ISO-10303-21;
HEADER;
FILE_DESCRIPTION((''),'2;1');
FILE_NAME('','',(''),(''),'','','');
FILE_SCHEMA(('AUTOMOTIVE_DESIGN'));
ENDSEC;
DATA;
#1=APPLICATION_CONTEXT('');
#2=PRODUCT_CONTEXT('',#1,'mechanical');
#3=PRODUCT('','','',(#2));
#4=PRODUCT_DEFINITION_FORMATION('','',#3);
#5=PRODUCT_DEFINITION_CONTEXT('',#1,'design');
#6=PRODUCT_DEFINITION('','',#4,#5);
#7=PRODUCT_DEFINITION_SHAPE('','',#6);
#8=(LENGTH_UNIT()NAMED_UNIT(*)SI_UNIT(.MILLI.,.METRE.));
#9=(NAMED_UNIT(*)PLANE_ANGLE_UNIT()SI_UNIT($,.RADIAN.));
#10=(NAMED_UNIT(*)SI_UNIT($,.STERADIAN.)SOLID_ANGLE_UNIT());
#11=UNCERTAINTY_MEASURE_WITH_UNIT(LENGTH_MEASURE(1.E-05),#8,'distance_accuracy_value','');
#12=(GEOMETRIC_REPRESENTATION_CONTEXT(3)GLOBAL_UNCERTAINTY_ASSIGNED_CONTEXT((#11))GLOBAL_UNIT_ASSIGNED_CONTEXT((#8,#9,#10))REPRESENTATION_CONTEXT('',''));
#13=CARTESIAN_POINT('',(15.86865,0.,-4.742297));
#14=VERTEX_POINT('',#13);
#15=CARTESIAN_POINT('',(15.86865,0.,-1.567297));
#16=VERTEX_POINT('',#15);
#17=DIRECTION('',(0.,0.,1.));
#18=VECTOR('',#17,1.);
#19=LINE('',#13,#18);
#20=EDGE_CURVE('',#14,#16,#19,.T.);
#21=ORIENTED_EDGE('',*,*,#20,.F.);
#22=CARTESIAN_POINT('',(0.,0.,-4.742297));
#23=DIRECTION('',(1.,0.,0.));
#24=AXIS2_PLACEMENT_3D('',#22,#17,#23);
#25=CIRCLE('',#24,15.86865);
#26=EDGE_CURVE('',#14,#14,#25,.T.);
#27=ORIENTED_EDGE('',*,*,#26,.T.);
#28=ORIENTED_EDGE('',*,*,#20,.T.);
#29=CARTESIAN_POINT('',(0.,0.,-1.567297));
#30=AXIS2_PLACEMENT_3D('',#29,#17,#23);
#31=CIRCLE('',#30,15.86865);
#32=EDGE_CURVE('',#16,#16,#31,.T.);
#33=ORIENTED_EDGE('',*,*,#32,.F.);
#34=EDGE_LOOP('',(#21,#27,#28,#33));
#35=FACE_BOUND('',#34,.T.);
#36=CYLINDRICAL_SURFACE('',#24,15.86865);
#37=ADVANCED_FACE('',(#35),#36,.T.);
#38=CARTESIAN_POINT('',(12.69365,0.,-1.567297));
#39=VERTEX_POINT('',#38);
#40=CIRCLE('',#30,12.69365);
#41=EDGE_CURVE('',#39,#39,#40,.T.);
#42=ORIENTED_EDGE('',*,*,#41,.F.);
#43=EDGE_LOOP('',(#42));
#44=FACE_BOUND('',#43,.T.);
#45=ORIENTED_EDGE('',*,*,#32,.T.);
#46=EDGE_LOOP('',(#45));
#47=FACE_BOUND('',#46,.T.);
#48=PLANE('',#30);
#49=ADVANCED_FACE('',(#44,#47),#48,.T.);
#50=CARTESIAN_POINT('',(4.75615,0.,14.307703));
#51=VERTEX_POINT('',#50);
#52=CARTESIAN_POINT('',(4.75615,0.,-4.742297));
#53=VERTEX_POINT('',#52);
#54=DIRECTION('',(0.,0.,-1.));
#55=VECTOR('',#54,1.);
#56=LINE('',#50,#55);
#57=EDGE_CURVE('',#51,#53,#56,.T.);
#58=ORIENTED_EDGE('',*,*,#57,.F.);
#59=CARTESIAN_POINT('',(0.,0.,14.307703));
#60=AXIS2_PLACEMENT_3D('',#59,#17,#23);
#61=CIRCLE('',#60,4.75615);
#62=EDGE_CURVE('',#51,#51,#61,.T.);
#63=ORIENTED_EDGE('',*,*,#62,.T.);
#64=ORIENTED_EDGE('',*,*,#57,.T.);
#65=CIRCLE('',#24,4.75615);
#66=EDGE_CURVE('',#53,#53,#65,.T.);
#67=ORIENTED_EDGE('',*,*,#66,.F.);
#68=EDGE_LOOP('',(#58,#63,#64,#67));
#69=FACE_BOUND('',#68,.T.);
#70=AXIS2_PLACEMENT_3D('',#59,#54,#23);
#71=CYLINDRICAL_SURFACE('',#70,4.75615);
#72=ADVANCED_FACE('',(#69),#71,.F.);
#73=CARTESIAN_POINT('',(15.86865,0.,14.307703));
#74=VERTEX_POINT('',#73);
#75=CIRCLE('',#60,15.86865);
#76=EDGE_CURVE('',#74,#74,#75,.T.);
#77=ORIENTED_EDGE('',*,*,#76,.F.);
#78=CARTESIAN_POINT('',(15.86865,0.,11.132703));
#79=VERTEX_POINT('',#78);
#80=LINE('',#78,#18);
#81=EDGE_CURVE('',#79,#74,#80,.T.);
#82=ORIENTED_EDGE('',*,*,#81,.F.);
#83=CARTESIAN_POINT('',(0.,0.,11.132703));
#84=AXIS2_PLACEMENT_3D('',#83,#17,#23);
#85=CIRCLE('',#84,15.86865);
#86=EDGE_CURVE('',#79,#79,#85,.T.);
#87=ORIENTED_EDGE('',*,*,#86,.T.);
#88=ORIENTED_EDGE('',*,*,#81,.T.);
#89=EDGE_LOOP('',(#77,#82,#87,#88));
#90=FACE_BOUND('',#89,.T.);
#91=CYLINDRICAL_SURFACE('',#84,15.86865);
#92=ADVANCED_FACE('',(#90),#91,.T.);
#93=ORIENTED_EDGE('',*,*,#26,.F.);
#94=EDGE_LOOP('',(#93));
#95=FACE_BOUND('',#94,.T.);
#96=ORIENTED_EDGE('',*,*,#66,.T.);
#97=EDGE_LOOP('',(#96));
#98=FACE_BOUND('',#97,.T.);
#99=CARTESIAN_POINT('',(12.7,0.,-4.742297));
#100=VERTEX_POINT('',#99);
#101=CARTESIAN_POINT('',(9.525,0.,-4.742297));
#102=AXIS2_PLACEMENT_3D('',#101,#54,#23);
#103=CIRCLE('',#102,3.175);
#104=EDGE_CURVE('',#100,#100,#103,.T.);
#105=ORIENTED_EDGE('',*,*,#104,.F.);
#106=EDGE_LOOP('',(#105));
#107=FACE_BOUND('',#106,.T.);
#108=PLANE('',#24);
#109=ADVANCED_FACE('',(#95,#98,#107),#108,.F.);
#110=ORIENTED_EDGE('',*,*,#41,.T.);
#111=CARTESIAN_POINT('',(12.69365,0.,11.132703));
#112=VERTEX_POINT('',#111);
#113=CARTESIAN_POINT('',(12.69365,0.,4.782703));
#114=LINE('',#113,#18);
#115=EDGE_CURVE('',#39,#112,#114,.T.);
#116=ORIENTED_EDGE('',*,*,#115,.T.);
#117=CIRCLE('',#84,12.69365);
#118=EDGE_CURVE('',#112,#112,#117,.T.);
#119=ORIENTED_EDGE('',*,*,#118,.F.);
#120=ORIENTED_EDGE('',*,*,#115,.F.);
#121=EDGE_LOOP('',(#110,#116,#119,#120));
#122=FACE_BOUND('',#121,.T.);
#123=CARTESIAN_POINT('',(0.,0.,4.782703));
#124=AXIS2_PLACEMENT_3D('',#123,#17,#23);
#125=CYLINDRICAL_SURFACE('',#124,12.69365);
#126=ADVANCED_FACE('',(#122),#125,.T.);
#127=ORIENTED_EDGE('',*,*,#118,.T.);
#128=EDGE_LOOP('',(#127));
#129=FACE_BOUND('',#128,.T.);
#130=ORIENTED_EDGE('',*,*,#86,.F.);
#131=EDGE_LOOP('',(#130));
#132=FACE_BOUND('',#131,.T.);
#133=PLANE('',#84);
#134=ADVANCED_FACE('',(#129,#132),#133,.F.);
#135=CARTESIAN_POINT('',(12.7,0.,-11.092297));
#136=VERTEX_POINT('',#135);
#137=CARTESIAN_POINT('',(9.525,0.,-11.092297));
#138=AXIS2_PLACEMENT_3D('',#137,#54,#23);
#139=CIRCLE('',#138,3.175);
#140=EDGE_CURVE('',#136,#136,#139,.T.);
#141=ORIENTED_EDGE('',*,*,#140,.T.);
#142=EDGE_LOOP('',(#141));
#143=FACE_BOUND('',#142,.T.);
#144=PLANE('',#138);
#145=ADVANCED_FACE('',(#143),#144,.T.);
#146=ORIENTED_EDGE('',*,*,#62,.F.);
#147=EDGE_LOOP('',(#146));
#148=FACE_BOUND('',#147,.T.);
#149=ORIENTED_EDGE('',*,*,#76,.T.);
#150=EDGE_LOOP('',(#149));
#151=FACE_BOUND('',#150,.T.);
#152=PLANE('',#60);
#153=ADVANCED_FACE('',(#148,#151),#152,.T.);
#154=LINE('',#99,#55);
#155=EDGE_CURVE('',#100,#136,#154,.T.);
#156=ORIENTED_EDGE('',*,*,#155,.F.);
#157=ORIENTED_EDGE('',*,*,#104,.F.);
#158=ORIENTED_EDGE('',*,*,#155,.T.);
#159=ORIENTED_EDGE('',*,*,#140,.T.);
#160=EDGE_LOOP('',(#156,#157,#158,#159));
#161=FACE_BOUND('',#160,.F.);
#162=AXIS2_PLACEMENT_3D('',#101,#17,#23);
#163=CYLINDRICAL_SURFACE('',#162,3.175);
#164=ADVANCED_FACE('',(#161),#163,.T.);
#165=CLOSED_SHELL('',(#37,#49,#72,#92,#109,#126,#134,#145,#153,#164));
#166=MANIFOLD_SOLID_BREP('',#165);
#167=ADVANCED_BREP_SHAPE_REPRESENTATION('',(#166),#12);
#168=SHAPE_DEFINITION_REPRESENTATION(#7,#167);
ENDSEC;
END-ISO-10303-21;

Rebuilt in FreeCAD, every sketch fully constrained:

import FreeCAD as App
import Part
import Sketcher
from FreeCAD import Vector
Q = App.Units.Quantity

doc = App.newDocument("Part")
params = doc.addObject("Spreadsheet::Sheet", "Params")
for row, (alias, value) in enumerate([
    ("sketch1_height", "0.5 in"),
    ("sketch1_height2", "0.75 in"),
    ("sketch1_width", "0.4375 in"),
    ("revolution_angle", "360 deg"),
    ("sketch2_diameter", "0.25 in"),
    ("pad1_length", "0.25 in"),
], start=1):
    params.set(f"A{row}", alias)
    params.set(f"B{row}", "=" + value)
    params.setAlias(f"B{row}", alias)

body = doc.addObject("PartDesign::Body", "Body")

# Sketch on XZ plane
sketch1 = doc.addObject("Sketcher::SketchObject", "Sketch")
body.addObject(sketch1)
sketch1.AttachmentSupport = (doc.XZ_Plane, [""])
sketch1.MapMode = "FlatFace"
sketch1.addGeometry([
    Part.LineSegment(Vector(15.9, 14.3, 0), Vector(4.8, 14.3, 0)),  # 0
    Part.LineSegment(Vector(4.8, 14.3, 0), Vector(4.8, -4.7, 0)),  # 1
    Part.LineSegment(Vector(4.8, -4.7, 0), Vector(15.9, -4.7, 0)),  # 2
    Part.LineSegment(Vector(15.9, -4.7, 0), Vector(15.9, -1.6, 0)),  # 3
    Part.LineSegment(Vector(15.9, -1.6, 0), Vector(12.7, -1.6, 0)),  # 4
    Part.LineSegment(Vector(12.7, -1.6, 0), Vector(12.7, 11.1, 0)),  # 5
    Part.LineSegment(Vector(12.7, 11.1, 0), Vector(15.9, 11.1, 0)),  # 6
    Part.LineSegment(Vector(15.9, 11.1, 0), Vector(15.9, 14.3, 0)),  # 7
], False)
sketch1.addConstraint([
    Sketcher.Constraint("Coincident", 0, 2, 1, 1),
    Sketcher.Constraint("Coincident", 1, 2, 2, 1),
    Sketcher.Constraint("Coincident", 2, 2, 3, 1),
    Sketcher.Constraint("Coincident", 3, 2, 4, 1),
    Sketcher.Constraint("Coincident", 4, 2, 5, 1),
    Sketcher.Constraint("Coincident", 5, 2, 6, 1),
    Sketcher.Constraint("Coincident", 6, 2, 7, 1),
    Sketcher.Constraint("Coincident", 7, 2, 0, 1),
    Sketcher.Constraint("Horizontal", 0),
    Sketcher.Constraint("Vertical", 1),
    Sketcher.Constraint("Horizontal", 2),
    Sketcher.Constraint("Vertical", 3),
    Sketcher.Constraint("Horizontal", 4),
    Sketcher.Constraint("Vertical", 5),
    Sketcher.Constraint("Horizontal", 6),
    Sketcher.Constraint("Vertical", 7),
    Sketcher.Constraint("Vertical", 3, 2, 6, 2),
    Sketcher.Constraint("Equal", 6, 3),
    Sketcher.Constraint("Equal", 3, 7),
    Sketcher.Constraint("DistanceY", 5, 1, 5, 2, Q("0.5 in")),
    Sketcher.Constraint("DistanceY", 1, 2, 1, 1, Q("0.75 in")),
    Sketcher.Constraint("DistanceX", 0, 2, 0, 1, Q("0.4375 in")),
    Sketcher.Constraint("DistanceX", -1, 1, 0, 2, Q("4.75615 mm")),
    Sketcher.Constraint("DistanceY", -1, 1, 0, 2, Q("14.307703 mm")),
])
sketch1.setExpression("Constraints[19]", "Params.sketch1_height")
sketch1.setExpression("Constraints[20]", "Params.sketch1_height2")
sketch1.setExpression("Constraints[21]", "Params.sketch1_width")
revolution = doc.addObject("PartDesign::Revolution", "Revolution")
body.addObject(revolution)
revolution.Profile = sketch1
revolution.ReferenceAxis = (sketch1, ["V_Axis"])
revolution.setExpression("Angle", "Params.revolution_angle")

# Sketch on XY plane
sketch2 = doc.addObject("Sketcher::SketchObject", "Sketch001")
body.addObject(sketch2)
sketch2.AttachmentSupport = (doc.XY_Plane, [""])
sketch2.MapMode = "FlatFace"
sketch2.AttachmentOffset = App.Placement(Vector(0, 0, -4.742297), App.Rotation())
sketch2.addGeometry(Part.Circle(Vector(9.5, 0, 0), Vector(0, 0, 1), 3.2), False)
sketch2.addConstraint([
    Sketcher.Constraint("PointOnObject", 0, 3, -1),
    Sketcher.Constraint("Diameter", 0, Q("0.25 in")),
    Sketcher.Constraint("DistanceX", -1, 1, 0, 3, Q("0.375 in")),
])
sketch2.setExpression("Constraints[1]", "Params.sketch2_diameter")
pad1 = doc.addObject("PartDesign::Pad", "Pad")
body.addObject(pad1)
pad1.Profile = sketch2
pad1.setExpression("Length", "Params.pad1_length")
pad1.Reversed = True

doc.recompute()
